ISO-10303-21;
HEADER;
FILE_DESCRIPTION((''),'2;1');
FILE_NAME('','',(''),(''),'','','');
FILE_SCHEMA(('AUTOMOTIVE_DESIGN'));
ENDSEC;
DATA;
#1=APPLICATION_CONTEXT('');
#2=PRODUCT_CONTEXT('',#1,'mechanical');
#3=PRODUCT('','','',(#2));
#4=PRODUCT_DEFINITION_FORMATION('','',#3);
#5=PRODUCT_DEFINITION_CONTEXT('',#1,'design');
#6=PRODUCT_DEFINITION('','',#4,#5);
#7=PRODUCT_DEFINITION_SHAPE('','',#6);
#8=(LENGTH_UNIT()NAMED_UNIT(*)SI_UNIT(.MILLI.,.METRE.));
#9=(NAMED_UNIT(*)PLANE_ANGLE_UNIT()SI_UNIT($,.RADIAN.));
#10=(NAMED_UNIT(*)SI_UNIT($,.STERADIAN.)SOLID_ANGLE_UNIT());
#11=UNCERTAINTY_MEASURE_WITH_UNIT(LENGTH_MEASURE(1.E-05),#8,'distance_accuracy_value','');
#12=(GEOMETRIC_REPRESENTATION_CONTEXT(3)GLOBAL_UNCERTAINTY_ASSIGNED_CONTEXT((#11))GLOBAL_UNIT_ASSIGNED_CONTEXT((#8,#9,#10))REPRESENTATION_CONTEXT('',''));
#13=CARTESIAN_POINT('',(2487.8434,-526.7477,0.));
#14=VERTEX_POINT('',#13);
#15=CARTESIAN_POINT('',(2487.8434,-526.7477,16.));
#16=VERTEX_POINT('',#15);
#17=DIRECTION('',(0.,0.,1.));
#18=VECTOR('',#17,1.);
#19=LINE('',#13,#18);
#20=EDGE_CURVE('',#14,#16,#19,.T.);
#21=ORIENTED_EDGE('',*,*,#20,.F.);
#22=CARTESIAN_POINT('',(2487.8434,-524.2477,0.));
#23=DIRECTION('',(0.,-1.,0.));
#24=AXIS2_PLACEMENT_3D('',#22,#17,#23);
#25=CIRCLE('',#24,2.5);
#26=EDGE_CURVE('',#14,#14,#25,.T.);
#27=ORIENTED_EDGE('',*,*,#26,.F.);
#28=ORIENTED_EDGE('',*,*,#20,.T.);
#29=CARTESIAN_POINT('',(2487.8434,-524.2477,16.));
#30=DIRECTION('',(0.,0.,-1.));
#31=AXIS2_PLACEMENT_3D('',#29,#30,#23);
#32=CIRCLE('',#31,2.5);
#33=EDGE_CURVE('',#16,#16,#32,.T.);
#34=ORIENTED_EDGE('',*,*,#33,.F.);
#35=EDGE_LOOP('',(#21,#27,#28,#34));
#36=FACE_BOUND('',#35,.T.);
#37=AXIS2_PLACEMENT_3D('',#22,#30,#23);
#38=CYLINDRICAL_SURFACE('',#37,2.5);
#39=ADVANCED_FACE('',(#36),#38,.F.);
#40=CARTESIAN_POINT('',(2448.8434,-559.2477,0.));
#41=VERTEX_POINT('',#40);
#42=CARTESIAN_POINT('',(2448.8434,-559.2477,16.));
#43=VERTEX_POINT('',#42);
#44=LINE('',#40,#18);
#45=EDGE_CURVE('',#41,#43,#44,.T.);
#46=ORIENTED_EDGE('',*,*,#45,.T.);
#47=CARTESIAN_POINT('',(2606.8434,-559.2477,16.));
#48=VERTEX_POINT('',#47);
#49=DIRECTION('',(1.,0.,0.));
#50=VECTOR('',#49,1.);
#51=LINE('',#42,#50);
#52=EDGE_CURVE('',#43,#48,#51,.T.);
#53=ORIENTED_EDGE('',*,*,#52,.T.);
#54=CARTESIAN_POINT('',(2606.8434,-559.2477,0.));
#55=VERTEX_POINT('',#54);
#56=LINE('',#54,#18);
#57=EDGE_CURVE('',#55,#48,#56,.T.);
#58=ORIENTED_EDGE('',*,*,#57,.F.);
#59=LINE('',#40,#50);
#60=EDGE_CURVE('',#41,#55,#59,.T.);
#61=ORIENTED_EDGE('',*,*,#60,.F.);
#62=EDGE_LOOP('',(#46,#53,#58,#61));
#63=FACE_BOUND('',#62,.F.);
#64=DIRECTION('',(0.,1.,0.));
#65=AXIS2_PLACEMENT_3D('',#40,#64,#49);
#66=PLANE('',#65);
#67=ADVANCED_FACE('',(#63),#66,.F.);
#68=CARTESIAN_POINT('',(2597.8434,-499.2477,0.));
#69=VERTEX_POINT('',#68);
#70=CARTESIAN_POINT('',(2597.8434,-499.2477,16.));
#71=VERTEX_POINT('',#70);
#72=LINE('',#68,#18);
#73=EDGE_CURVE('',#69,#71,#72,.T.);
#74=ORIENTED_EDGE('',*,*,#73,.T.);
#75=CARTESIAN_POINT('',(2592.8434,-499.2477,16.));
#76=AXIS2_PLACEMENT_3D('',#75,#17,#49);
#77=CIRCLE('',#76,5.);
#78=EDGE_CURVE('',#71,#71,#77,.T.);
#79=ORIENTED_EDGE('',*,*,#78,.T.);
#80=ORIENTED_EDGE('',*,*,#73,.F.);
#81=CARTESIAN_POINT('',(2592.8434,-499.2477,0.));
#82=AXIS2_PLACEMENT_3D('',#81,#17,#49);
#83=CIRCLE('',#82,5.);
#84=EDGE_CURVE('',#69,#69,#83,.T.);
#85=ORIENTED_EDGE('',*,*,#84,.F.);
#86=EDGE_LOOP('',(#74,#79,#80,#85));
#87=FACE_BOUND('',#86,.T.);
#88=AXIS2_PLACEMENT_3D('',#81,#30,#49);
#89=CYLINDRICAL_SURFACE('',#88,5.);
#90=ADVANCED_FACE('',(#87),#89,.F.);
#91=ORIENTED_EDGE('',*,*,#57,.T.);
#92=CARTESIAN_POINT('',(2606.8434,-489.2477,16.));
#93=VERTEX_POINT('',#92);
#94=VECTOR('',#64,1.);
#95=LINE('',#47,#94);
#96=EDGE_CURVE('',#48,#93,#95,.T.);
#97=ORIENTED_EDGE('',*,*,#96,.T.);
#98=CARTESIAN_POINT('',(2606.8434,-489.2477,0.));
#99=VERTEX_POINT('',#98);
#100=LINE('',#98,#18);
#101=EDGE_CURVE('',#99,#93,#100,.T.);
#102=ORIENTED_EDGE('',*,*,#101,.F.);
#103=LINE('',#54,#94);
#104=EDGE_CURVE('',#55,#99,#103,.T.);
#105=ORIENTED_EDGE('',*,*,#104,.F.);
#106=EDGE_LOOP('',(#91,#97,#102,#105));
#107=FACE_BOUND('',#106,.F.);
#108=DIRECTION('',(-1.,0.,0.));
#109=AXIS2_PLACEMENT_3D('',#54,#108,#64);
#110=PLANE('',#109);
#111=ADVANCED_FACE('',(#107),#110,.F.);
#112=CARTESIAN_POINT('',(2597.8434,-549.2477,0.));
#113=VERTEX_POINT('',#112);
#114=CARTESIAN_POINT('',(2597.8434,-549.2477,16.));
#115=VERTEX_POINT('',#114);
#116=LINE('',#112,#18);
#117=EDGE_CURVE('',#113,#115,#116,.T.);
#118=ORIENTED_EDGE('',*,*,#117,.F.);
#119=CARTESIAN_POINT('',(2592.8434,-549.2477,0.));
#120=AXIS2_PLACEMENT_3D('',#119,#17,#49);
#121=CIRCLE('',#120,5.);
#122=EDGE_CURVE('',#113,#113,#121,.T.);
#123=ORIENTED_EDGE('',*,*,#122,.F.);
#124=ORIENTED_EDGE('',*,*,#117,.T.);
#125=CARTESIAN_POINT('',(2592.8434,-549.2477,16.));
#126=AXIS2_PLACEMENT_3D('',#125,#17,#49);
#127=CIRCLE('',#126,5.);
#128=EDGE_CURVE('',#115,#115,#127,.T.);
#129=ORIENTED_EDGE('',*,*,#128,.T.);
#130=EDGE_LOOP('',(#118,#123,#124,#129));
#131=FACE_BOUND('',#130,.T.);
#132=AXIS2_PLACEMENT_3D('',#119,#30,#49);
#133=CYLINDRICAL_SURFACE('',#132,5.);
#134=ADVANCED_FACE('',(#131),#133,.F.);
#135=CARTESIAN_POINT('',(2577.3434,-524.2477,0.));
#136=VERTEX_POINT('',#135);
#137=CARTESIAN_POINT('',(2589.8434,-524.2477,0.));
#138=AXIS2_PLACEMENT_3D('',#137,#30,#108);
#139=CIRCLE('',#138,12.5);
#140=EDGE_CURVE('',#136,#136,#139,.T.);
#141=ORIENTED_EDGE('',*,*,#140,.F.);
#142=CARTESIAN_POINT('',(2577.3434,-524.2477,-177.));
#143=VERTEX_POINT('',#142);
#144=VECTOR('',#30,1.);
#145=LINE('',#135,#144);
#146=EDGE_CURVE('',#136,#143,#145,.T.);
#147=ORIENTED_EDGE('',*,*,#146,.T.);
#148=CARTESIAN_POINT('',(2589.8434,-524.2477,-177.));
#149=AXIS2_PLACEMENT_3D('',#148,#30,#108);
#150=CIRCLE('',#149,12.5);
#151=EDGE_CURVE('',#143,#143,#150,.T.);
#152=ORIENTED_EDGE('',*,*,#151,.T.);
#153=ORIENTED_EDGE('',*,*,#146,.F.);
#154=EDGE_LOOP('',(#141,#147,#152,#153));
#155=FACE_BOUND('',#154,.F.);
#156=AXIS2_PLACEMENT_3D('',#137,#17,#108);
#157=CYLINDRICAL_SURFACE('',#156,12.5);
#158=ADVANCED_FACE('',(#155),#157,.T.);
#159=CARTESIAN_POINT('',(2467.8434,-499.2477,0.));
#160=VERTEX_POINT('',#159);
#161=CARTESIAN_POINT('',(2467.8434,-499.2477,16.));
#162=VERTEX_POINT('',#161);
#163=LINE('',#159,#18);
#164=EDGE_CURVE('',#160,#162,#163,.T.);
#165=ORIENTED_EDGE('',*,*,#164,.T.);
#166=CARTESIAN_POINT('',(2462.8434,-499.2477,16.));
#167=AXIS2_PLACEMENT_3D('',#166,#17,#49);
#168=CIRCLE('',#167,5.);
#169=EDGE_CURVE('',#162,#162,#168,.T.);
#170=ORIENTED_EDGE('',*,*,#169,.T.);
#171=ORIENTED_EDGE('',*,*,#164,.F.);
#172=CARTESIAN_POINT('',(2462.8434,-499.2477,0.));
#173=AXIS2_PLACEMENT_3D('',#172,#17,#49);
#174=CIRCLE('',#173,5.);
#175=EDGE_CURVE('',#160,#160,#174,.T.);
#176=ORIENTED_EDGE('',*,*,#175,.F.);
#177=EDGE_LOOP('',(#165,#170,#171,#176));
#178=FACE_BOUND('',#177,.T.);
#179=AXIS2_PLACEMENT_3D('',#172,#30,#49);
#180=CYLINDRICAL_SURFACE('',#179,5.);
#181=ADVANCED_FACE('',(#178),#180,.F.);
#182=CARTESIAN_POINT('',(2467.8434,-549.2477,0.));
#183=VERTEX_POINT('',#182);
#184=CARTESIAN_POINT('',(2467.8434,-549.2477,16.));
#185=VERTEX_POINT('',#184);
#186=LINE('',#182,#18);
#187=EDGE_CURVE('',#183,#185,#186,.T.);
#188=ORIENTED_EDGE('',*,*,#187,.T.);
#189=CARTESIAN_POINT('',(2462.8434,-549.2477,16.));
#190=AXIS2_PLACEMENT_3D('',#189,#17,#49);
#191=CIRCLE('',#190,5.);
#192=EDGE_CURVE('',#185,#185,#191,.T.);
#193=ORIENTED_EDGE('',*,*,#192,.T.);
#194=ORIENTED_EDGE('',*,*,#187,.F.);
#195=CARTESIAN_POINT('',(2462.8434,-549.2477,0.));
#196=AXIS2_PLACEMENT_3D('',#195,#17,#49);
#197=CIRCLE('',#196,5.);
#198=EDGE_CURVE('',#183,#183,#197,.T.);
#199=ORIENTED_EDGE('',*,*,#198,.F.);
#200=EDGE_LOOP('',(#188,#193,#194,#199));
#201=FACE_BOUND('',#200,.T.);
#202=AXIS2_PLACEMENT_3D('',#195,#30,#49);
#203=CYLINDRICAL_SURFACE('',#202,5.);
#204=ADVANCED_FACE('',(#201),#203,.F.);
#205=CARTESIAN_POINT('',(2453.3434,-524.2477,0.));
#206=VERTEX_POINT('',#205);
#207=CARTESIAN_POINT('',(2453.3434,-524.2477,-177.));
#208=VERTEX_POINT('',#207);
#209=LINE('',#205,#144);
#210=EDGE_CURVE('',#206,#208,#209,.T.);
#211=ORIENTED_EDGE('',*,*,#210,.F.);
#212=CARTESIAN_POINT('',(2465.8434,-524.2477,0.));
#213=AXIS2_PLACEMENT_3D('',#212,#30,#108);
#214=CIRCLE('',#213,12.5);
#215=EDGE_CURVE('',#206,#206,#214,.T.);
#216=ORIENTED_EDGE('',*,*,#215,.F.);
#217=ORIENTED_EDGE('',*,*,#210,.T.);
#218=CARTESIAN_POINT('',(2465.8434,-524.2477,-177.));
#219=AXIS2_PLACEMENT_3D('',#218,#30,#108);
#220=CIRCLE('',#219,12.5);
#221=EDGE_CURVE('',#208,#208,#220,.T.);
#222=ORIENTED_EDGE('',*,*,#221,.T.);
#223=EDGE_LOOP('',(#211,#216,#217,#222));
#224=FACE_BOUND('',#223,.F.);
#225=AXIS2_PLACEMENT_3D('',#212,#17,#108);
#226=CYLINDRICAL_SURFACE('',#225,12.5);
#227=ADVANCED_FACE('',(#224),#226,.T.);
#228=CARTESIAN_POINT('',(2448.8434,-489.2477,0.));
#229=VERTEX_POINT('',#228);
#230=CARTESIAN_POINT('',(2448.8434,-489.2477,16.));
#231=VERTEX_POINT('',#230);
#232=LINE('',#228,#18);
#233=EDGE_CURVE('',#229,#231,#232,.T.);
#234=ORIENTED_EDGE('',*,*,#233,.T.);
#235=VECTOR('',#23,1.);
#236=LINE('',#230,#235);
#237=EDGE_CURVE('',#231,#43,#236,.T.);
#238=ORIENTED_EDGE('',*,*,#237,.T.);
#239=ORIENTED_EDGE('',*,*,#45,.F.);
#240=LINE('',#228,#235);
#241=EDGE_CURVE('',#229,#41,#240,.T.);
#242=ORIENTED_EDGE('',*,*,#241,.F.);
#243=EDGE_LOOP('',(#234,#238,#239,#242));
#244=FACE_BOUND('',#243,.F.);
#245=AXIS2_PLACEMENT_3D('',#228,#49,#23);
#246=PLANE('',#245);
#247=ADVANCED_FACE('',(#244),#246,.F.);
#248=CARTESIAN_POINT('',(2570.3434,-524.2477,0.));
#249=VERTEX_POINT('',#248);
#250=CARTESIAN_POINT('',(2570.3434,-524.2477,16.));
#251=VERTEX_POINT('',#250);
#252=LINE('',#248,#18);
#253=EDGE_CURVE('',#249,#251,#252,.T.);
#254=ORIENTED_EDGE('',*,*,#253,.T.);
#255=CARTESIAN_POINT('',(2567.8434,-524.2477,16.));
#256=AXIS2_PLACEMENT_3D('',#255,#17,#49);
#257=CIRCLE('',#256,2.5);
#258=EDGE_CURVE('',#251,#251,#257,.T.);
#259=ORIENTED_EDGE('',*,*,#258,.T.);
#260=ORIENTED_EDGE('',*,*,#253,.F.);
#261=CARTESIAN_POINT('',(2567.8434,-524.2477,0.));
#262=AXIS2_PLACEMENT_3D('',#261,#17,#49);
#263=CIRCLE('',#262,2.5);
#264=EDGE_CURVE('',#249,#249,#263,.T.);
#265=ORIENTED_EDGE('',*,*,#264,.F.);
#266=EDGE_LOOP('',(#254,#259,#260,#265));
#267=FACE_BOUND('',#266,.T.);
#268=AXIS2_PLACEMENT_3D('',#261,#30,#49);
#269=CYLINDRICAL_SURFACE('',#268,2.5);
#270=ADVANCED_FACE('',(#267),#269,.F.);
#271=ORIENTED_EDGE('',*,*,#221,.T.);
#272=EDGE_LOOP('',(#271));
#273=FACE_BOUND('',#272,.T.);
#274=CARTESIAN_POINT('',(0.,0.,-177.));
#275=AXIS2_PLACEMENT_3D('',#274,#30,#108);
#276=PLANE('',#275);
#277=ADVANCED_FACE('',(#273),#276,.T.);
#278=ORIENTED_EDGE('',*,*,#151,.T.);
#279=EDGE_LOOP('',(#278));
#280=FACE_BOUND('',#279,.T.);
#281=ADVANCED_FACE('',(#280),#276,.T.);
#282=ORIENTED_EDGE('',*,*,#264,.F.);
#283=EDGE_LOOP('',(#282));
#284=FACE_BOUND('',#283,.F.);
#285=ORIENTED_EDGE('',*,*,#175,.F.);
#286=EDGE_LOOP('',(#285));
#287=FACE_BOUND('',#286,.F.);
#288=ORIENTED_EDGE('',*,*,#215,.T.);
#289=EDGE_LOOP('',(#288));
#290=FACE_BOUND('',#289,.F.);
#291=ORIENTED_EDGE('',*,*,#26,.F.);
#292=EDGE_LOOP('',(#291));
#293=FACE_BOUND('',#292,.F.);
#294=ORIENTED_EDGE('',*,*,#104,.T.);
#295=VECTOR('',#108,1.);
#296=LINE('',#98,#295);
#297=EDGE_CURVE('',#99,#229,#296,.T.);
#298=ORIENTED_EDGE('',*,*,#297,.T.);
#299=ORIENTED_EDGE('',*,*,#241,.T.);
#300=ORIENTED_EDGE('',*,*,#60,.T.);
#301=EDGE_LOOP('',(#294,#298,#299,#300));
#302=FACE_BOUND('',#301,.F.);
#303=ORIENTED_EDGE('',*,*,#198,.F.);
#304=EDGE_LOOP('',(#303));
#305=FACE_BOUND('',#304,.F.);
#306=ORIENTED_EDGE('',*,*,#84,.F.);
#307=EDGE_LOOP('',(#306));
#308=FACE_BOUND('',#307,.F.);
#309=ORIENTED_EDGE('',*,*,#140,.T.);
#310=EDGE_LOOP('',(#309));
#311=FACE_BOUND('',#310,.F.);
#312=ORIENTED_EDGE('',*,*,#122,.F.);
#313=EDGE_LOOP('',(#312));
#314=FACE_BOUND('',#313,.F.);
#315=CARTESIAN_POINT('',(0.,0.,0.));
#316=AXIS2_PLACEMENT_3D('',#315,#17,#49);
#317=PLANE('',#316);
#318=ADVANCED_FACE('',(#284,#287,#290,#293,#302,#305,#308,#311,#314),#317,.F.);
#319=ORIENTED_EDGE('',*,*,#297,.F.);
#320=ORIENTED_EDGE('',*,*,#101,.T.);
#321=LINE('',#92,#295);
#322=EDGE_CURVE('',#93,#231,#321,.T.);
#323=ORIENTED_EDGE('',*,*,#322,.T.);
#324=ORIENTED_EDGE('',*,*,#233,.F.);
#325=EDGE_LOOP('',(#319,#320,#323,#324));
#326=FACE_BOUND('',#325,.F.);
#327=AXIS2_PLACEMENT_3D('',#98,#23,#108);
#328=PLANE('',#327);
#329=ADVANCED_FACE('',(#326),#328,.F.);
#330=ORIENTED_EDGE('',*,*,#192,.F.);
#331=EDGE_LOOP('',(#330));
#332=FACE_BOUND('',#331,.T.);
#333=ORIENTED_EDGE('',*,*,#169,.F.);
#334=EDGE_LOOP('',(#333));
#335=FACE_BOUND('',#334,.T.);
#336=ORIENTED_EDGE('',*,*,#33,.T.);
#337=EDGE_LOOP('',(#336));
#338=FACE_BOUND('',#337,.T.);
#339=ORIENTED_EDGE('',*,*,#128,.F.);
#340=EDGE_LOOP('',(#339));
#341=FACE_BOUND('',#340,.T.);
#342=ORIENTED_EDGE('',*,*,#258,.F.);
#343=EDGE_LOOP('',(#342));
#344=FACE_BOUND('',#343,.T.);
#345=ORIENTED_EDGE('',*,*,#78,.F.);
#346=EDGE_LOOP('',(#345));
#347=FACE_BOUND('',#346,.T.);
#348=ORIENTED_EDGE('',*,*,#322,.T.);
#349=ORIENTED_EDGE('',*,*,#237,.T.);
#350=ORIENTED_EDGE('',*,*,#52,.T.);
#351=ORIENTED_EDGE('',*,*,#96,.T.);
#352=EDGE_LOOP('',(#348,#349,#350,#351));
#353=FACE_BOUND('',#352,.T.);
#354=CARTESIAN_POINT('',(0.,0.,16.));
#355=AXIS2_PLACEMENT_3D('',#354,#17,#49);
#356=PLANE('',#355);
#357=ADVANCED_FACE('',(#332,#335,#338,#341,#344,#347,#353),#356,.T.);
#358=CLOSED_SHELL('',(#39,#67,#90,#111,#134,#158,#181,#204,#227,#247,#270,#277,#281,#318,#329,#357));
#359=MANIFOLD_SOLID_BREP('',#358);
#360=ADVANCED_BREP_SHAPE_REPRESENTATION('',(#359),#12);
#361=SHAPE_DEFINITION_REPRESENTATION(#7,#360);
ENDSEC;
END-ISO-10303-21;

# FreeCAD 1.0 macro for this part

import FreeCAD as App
import Part
import Sketcher

V = App.Vector

doc = App.newDocument("Part")
body = doc.addObject("PartDesign::Body", "Body")

sketch1 = doc.addObject("Sketcher::SketchObject", "Sketch")
body.addObject(sketch1)
sketch1.AttachmentSupport = (doc.XY_Plane, [""])
sketch1.MapMode = "FlatFace"
sketch1.addGeometry([
    Part.LineSegment(V(2448.8434, -489.2477, 0), V(2448.8434, -559.2477, 0)),
    Part.LineSegment(V(2448.8434, -559.2477, 0), V(2606.8434, -559.2477, 0)),
    Part.LineSegment(V(2606.8434, -559.2477, 0), V(2606.8434, -489.2477, 0)),
    Part.LineSegment(V(2606.8434, -489.2477, 0), V(2448.8434, -489.2477, 0)),
    Part.Circle(V(2462.8434, -549.2477, 0), V(0, 0, 1), 5),
    Part.Circle(V(2592.8434, -549.2477, 0), V(0, 0, 1), 5),
    Part.Circle(V(2487.8434, -524.2477, 0), V(0, 0, 1), 2.5),
    Part.Circle(V(2462.8434, -499.2477, 0), V(0, 0, 1), 5),
    Part.Circle(V(2567.8434, -524.2477, 0), V(0, 0, 1), 2.5),
    Part.Circle(V(2592.8434, -499.2477, 0), V(0, 0, 1), 5),
], False)
sketch1.addConstraint([
    Sketcher.Constraint("Coincident", 0, 2, 1, 1),
    Sketcher.Constraint("Coincident", 1, 2, 2, 1),
    Sketcher.Constraint("Coincident", 2, 2, 3, 1),
    Sketcher.Constraint("Coincident", 3, 2, 0, 1),
    Sketcher.Constraint("Vertical", 0),
    Sketcher.Constraint("Horizontal", 1),
    Sketcher.Constraint("Vertical", 2),
    Sketcher.Constraint("Horizontal", 3),
    Sketcher.Constraint("Equal", 4, 5),
    Sketcher.Constraint("Equal", 5, 7),
    Sketcher.Constraint("Equal", 6, 8),
    Sketcher.Constraint("Equal", 7, 9),
    Sketcher.Constraint("Horizontal", 4, 3, 5, 3),
    Sketcher.Constraint("Horizontal", 6, 3, 8, 3),
    Sketcher.Constraint("Horizontal", 7, 3, 9, 3),
    Sketcher.Constraint("Vertical", 4, 3, 7, 3),
    Sketcher.Constraint("Vertical", 5, 3, 9, 3),
    Sketcher.Constraint("Diameter", 4, 10.0),
    Sketcher.Constraint("Diameter", 6, 5.0),
    Sketcher.Constraint("DistanceX", 1, 1, 1, 2, 158.0),
    Sketcher.Constraint("DistanceY", 0, 2, 0, 1, 70.0),
    Sketcher.Constraint("DistanceX", 4, 3, 5, 3, 130.0),
    Sketcher.Constraint("DistanceX", 4, 3, 6, 3, 25.0),
    Sketcher.Constraint("DistanceY", 4, 3, 6, 3, 25.0),
    Sketcher.Constraint("DistanceY", 6, 3, 7, 3, 25.0),
    Sketcher.Constraint("DistanceX", 8, 3, 5, 3, 25.0),
    Sketcher.Constraint("DistanceX", 0, 2, 4, 3, 14.0),
    Sketcher.Constraint("DistanceY", 0, 2, 4, 3, 10.0),
    Sketcher.Constraint("DistanceX", -1, 1, 4, 3, 2462.8434),
    Sketcher.Constraint("DistanceY", 4, 3, -1, 1, 549.2477),
])
pad1 = doc.addObject("PartDesign::Pad", "Pad")
body.addObject(pad1)
pad1.Profile = sketch1
pad1.Length = 16

sketch2 = doc.addObject("Sketcher::SketchObject", "Sketch001")
body.addObject(sketch2)
sketch2.AttachmentSupport = (doc.XY_Plane, [""])
sketch2.MapMode = "FlatFace"
sketch2.addGeometry([
    Part.Circle(V(2589.8434, -524.2477, 0), V(0, 0, 1), 12.5),
    Part.Circle(V(2465.8434, -524.2477, 0), V(0, 0, 1), 12.5),
], False)
sketch2.addConstraint([
    Sketcher.Constraint("Equal", 0, 1),
    Sketcher.Constraint("Horizontal", 0, 3, 1, 3),
    Sketcher.Constraint("Diameter", 0, 25.0),
    Sketcher.Constraint("DistanceX", 1, 3, 0, 3, 124.0),
    Sketcher.Constraint("DistanceX", -1, 1, 0, 3, 2589.8434),
    Sketcher.Constraint("DistanceY", 0, 3, -1, 1, 524.2477),
])
pad2 = doc.addObject("PartDesign::Pad", "Pad001")
body.addObject(pad2)
pad2.Profile = sketch2
pad2.Length = 177
pad2.Reversed = True

doc.recompute()
